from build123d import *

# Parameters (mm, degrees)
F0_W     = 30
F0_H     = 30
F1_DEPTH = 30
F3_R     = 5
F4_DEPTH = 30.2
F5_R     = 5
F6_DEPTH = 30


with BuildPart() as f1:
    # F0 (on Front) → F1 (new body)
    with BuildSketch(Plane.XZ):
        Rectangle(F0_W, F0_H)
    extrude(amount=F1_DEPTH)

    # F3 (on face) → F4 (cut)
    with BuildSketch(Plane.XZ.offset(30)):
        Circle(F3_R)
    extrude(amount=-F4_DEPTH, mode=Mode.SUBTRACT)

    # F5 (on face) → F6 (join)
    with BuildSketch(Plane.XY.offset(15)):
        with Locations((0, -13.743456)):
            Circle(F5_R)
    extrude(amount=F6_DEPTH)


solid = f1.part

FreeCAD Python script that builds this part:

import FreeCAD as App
import Part
import Sketcher

V = App.Vector
Q = App.Units.Quantity


def add_polygon(sketch, points):
    """Adds a closed chain of lines whose ends are joined by coincident constraints."""
    first, n = sketch.GeometryCount, len(points)
    for a, b in zip(points, points[1:] + points[:1]):
        sketch.addGeometry(Part.LineSegment(App.Vector(*a, 0), App.Vector(*b, 0)), False)
    for i in range(n):
        sketch.addConstraint(Sketcher.Constraint("Coincident", first + i, 2, first + (i + 1) % n, 1))

doc = App.newDocument("Part")
body = doc.addObject("PartDesign::Body", "Body")

# Sketch on XZ plane
sketch1 = body.newObject("Sketcher::SketchObject", "Sketch")
sketch1.AttachmentSupport = (doc.getObject("XZ_Plane"), [""])
sketch1.MapMode = "FlatFace"
add_polygon(sketch1, [(-15, 15), (-15, -15), (15, -15), (15, 15)])  # lines 0-3
sketch1.addConstraint([
    Sketcher.Constraint("Vertical", 0),
    Sketcher.Constraint("Horizontal", 1),
    Sketcher.Constraint("Vertical", 2),
    Sketcher.Constraint("Horizontal", 3),
    Sketcher.Constraint("Symmetric", 0, 2, 2, 2, -1, 1),
    Sketcher.Constraint("Equal", 3, 0),
    Sketcher.Constraint("DistanceX", 1, 1, 1, 2, Q("30 mm")),
])
pad1 = body.newObject("PartDesign::Pad", "Pad")
pad1.Profile = sketch1
pad1.Length = 30

# Sketch on XZ plane
sketch2 = body.newObject("Sketcher::SketchObject", "Sketch001")
sketch2.AttachmentSupport = (doc.getObject("XZ_Plane"), [""])
sketch2.MapMode = "FlatFace"
sketch2.AttachmentOffset = App.Placement(V(0, 0, 30), App.Rotation())
sketch2.addGeometry(Part.Circle(V(0, 0, 0), V(0, 0, 1), 5), False)
sketch2.addConstraint([
    Sketcher.Constraint("Coincident", 0, 3, -1, 1),
    Sketcher.Constraint("Diameter", 0, Q("10 mm")),
])
pocket1 = body.newObject("PartDesign::Pocket", "Pocket")
pocket1.Profile = sketch2
pocket1.Length = 30.2

# Sketch on XY plane
sketch3 = body.newObject("Sketcher::SketchObject", "Sketch002")
sketch3.AttachmentSupport = (doc.getObject("XY_Plane"), [""])
sketch3.MapMode = "FlatFace"
sketch3.AttachmentOffset = App.Placement(V(0, 0, 15), App.Rotation())
sketch3.addGeometry(Part.Circle(V(0, -13.743456, 0), V(0, 0, 1), 5), False)
sketch3.addConstraint([
    Sketcher.Constraint("PointOnObject", 0, 3, -2),
    Sketcher.Constraint("Diameter", 0, Q("10 mm")),
    Sketcher.Constraint("DistanceY", 0, 3, -1, 1, Q("13.743456 mm")),
])
pad2 = body.newObject("PartDesign::Pad", "Pad001")
pad2.Profile = sketch3
pad2.Length = 30

doc.recompute()
